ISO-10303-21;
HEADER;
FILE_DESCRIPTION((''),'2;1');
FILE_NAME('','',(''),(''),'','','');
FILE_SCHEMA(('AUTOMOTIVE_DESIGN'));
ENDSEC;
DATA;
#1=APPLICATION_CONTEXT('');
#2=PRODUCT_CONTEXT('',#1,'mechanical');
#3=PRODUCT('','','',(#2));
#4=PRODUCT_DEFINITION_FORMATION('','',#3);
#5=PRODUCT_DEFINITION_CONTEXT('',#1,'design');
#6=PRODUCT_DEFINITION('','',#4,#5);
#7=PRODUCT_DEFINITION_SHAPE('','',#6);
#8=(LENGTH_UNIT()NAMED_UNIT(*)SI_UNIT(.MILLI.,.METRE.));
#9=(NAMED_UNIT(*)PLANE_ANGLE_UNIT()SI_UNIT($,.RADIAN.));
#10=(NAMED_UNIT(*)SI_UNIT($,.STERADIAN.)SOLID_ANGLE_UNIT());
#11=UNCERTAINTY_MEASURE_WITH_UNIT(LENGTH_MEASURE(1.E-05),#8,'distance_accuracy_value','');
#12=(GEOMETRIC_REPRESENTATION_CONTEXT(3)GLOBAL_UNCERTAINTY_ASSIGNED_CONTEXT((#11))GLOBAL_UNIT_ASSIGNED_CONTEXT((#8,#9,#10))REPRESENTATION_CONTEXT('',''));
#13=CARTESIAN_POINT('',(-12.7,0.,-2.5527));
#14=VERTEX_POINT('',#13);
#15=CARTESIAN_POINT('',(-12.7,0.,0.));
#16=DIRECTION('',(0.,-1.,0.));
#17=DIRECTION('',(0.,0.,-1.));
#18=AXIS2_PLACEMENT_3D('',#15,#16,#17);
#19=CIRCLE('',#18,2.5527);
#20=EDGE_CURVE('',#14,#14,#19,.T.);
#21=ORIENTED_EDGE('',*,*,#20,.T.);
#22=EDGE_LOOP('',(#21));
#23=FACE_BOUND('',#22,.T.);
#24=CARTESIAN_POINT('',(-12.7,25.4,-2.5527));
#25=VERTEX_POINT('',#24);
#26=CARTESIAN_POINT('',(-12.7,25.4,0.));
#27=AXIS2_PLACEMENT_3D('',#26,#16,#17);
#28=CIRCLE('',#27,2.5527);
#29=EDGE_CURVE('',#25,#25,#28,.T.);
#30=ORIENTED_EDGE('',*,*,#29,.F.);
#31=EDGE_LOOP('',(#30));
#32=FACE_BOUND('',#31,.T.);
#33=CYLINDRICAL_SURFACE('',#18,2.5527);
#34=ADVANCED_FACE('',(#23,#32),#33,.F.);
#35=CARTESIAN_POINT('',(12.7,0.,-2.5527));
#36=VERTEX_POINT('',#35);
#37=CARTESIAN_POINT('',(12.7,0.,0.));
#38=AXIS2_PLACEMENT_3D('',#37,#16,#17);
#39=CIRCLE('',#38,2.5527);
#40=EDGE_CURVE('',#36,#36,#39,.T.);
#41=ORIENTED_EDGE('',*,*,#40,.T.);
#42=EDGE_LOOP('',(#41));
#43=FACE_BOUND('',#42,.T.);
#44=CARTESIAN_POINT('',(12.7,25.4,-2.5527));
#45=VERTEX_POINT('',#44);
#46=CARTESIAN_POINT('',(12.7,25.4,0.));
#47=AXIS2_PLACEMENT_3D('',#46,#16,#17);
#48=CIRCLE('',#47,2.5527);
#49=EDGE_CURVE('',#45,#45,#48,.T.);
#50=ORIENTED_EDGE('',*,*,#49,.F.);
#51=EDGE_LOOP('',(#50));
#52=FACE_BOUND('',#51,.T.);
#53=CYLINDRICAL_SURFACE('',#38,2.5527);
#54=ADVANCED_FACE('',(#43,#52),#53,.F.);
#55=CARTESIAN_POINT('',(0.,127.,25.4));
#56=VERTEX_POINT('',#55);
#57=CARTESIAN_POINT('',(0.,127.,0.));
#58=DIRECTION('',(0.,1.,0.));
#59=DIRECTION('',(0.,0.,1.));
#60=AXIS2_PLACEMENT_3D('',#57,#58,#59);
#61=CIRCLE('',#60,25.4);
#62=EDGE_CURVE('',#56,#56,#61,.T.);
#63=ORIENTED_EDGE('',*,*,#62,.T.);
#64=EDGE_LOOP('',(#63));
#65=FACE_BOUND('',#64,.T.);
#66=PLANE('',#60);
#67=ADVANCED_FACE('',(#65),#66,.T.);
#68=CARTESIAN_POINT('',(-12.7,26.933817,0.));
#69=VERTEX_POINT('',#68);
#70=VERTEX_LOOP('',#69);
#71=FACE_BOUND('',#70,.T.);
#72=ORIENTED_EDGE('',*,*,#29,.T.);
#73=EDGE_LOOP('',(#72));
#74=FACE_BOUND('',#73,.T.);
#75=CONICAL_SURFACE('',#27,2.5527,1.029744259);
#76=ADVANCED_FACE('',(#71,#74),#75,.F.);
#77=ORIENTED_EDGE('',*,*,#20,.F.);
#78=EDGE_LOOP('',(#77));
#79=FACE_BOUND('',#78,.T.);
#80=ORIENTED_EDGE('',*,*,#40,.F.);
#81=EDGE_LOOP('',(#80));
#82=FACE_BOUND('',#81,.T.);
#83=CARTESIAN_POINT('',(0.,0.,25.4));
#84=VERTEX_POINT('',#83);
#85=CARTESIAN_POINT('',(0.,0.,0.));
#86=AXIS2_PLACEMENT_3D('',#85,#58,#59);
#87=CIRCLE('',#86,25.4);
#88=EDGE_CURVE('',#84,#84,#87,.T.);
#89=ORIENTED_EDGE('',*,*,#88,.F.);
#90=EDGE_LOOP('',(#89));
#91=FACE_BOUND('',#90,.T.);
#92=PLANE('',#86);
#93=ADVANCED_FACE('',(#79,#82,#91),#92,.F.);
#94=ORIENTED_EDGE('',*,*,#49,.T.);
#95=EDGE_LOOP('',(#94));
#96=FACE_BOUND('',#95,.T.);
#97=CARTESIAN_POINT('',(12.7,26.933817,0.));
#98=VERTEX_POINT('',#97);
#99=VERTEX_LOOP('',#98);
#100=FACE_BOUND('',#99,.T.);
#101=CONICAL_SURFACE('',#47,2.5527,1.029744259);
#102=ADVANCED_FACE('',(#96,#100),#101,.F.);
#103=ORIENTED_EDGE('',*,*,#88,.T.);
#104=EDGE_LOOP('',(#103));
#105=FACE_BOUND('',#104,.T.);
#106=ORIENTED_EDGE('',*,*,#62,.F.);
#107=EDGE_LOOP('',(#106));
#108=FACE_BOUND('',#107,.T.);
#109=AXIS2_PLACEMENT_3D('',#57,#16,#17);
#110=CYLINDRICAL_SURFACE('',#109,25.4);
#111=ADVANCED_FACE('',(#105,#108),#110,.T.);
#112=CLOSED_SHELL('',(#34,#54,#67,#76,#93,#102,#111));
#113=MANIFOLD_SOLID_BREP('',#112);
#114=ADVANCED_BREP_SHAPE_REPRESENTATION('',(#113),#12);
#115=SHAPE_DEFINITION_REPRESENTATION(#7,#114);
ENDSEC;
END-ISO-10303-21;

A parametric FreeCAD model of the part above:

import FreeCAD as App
import Part
import Sketcher
Q = App.Units.Quantity

doc = App.newDocument("Part")
params = doc.addObject("Spreadsheet::Sheet", "Params")
for row, (alias, value) in enumerate([
    ("sketch1_diameter", "2 in"),
    ("pad1_length", "5 in"),
    ("sketch2_diameter", "0.201 in"),
    ("hole_diameter", "0.201 in"),
    ("hole_depth", "1 in"),
], start=1):
    params.set(f"A{row}", alias)
    params.set(f"B{row}", "=" + value)
    params.setAlias(f"B{row}", alias)

body = doc.addObject("PartDesign::Body", "Body")

# Sketch on XZ plane
sketch1 = body.newObject("Sketcher::SketchObject", "Sketch")
sketch1.AttachmentSupport = (doc.getObject("XZ_Plane"), [""])
sketch1.MapMode = "FlatFace"
sketch1.addGeometry(Part.Circle(App.Vector(0, 0, 0), App.Vector(0, 0, 1), 25), False)
sketch1.addConstraint(Sketcher.Constraint("Coincident", 0, 3, -1, 1))
sketch1.addConstraint(Sketcher.Constraint("Diameter", 0, Q("2 in")))
sketch1.setExpression("Constraints[1]", "Params.sketch1_diameter")
pad1 = body.newObject("PartDesign::Pad", "Pad")
pad1.Profile = sketch1
pad1.setExpression("Length", "Params.pad1_length")
pad1.Reversed = True

# Sketch on XZ plane
sketch2 = body.newObject("Sketcher::SketchObject", "Sketch001")
sketch2.AttachmentSupport = (doc.getObject("XZ_Plane"), [""])
sketch2.MapMode = "FlatFace"
sketch2.addGeometry(Part.Circle(App.Vector(-12.7, 0, 0), App.Vector(0, 0, 1), 2.6), False)
sketch2.addGeometry(Part.Circle(App.Vector(12.7, 0, 0), App.Vector(0, 0, 1), 2.6), False)
sketch2.addConstraint(Sketcher.Constraint("Equal", 0, 1))
sketch2.addConstraint(Sketcher.Constraint("Symmetric", 0, 3, 1, 3, -1, 1))
sketch2.addConstraint(Sketcher.Constraint("PointOnObject", 0, 3, -1))
sketch2.addConstraint(Sketcher.Constraint("Diameter", 0, Q("0.201 in")))
sketch2.addConstraint(Sketcher.Constraint("DistanceX", 0, 3, 1, 3, Q("1 in")))
sketch2.setExpression("Constraints[3]", "Params.sketch2_diameter")
doc.recompute()
hole = body.newObject("PartDesign::Hole", "Hole")
hole.Profile = sketch2
hole.ThreadType = "None"
hole.setExpression("Diameter", "Params.hole_diameter")
hole.DepthType = "Dimension"
hole.setExpression("Depth", "Params.hole_depth")
hole.DrillPoint = "Angled"
hole.DrillPointAngle = 118

doc.recompute()
